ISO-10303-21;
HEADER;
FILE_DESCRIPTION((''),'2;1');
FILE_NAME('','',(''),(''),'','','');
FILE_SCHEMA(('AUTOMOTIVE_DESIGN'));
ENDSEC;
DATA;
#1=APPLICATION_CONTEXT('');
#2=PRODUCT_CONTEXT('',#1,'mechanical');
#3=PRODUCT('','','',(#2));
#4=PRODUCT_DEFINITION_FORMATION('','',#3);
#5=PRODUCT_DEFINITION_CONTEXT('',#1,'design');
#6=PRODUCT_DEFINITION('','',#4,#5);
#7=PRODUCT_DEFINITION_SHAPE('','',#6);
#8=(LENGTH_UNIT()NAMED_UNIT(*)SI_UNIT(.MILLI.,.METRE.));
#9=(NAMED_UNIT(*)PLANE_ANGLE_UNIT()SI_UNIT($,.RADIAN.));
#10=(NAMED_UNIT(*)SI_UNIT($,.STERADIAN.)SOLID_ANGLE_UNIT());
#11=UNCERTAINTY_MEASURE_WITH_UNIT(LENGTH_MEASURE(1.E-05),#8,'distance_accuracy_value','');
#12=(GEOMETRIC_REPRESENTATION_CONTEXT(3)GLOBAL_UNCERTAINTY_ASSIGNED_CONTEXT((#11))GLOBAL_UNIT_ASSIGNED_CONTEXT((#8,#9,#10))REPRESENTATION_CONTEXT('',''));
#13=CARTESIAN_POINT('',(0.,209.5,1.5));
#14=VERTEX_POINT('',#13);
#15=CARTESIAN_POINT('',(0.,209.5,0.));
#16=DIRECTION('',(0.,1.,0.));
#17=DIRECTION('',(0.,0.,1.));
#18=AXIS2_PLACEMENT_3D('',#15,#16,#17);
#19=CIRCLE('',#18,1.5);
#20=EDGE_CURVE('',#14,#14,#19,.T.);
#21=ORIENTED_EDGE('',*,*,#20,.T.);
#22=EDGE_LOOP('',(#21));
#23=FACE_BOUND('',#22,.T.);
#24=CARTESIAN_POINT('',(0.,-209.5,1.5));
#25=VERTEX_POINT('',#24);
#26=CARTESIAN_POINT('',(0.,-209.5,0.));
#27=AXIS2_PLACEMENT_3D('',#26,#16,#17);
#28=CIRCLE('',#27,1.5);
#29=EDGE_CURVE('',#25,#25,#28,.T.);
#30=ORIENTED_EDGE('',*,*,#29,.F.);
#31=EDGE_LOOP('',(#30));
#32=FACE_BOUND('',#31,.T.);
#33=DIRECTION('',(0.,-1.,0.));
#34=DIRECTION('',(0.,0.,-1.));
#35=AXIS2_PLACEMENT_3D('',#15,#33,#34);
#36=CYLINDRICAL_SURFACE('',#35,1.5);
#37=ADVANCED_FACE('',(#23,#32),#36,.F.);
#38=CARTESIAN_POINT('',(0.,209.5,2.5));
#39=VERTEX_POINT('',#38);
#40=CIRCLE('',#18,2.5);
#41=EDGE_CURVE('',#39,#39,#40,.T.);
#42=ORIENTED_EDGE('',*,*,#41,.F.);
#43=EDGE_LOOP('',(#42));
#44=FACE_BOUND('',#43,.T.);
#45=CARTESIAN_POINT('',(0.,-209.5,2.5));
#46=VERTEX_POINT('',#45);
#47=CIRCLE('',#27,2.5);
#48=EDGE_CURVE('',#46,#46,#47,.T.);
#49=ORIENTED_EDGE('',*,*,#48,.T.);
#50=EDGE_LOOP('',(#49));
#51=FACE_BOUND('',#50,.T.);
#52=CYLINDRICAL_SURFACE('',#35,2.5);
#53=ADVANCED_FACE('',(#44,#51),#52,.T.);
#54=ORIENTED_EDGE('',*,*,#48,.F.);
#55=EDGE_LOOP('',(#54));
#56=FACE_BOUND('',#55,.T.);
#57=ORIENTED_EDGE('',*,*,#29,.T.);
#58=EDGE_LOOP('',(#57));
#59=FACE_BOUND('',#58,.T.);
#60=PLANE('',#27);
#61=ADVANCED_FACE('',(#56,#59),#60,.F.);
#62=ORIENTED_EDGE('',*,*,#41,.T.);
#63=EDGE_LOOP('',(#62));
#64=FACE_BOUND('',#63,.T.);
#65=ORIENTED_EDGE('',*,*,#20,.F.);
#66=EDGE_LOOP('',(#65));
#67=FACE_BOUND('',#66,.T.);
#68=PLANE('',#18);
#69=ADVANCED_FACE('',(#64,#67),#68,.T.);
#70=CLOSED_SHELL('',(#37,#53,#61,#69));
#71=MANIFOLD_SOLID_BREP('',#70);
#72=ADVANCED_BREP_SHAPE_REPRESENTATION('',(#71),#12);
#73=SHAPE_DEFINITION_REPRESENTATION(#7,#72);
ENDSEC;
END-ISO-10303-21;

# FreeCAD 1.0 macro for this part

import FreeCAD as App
import Part
import Sketcher
Q = App.Units.Quantity

doc = App.newDocument("Part")
body = doc.addObject("PartDesign::Body", "Body")

sketch1 = body.newObject("Sketcher::SketchObject", "Sketch")
sketch1.AttachmentSupport = (doc.getObject("XZ_Plane"), [""])
sketch1.MapMode = "FlatFace"
sketch1.addGeometry([
    Part.Circle(App.Vector(0, 0, 0), App.Vector(0, 0, 1), 2.5),
    Part.Circle(App.Vector(0, 0, 0), App.Vector(0, 0, 1), 1.5),
], False)
sketch1.addConstraint([
    Sketcher.Constraint("Coincident", 0, 3, -1, 1),
    Sketcher.Constraint("Coincident", 1, 3, -1, 1),
    Sketcher.Constraint("Diameter", 0, Q("5 mm")),
    Sketcher.Constraint("Diameter", 1, Q("3 mm")),
])
pad1 = body.newObject("PartDesign::Pad", "Pad")
pad1.Profile = sketch1
pad1.Length = 419
pad1.Midplane = True

doc.recompute()
